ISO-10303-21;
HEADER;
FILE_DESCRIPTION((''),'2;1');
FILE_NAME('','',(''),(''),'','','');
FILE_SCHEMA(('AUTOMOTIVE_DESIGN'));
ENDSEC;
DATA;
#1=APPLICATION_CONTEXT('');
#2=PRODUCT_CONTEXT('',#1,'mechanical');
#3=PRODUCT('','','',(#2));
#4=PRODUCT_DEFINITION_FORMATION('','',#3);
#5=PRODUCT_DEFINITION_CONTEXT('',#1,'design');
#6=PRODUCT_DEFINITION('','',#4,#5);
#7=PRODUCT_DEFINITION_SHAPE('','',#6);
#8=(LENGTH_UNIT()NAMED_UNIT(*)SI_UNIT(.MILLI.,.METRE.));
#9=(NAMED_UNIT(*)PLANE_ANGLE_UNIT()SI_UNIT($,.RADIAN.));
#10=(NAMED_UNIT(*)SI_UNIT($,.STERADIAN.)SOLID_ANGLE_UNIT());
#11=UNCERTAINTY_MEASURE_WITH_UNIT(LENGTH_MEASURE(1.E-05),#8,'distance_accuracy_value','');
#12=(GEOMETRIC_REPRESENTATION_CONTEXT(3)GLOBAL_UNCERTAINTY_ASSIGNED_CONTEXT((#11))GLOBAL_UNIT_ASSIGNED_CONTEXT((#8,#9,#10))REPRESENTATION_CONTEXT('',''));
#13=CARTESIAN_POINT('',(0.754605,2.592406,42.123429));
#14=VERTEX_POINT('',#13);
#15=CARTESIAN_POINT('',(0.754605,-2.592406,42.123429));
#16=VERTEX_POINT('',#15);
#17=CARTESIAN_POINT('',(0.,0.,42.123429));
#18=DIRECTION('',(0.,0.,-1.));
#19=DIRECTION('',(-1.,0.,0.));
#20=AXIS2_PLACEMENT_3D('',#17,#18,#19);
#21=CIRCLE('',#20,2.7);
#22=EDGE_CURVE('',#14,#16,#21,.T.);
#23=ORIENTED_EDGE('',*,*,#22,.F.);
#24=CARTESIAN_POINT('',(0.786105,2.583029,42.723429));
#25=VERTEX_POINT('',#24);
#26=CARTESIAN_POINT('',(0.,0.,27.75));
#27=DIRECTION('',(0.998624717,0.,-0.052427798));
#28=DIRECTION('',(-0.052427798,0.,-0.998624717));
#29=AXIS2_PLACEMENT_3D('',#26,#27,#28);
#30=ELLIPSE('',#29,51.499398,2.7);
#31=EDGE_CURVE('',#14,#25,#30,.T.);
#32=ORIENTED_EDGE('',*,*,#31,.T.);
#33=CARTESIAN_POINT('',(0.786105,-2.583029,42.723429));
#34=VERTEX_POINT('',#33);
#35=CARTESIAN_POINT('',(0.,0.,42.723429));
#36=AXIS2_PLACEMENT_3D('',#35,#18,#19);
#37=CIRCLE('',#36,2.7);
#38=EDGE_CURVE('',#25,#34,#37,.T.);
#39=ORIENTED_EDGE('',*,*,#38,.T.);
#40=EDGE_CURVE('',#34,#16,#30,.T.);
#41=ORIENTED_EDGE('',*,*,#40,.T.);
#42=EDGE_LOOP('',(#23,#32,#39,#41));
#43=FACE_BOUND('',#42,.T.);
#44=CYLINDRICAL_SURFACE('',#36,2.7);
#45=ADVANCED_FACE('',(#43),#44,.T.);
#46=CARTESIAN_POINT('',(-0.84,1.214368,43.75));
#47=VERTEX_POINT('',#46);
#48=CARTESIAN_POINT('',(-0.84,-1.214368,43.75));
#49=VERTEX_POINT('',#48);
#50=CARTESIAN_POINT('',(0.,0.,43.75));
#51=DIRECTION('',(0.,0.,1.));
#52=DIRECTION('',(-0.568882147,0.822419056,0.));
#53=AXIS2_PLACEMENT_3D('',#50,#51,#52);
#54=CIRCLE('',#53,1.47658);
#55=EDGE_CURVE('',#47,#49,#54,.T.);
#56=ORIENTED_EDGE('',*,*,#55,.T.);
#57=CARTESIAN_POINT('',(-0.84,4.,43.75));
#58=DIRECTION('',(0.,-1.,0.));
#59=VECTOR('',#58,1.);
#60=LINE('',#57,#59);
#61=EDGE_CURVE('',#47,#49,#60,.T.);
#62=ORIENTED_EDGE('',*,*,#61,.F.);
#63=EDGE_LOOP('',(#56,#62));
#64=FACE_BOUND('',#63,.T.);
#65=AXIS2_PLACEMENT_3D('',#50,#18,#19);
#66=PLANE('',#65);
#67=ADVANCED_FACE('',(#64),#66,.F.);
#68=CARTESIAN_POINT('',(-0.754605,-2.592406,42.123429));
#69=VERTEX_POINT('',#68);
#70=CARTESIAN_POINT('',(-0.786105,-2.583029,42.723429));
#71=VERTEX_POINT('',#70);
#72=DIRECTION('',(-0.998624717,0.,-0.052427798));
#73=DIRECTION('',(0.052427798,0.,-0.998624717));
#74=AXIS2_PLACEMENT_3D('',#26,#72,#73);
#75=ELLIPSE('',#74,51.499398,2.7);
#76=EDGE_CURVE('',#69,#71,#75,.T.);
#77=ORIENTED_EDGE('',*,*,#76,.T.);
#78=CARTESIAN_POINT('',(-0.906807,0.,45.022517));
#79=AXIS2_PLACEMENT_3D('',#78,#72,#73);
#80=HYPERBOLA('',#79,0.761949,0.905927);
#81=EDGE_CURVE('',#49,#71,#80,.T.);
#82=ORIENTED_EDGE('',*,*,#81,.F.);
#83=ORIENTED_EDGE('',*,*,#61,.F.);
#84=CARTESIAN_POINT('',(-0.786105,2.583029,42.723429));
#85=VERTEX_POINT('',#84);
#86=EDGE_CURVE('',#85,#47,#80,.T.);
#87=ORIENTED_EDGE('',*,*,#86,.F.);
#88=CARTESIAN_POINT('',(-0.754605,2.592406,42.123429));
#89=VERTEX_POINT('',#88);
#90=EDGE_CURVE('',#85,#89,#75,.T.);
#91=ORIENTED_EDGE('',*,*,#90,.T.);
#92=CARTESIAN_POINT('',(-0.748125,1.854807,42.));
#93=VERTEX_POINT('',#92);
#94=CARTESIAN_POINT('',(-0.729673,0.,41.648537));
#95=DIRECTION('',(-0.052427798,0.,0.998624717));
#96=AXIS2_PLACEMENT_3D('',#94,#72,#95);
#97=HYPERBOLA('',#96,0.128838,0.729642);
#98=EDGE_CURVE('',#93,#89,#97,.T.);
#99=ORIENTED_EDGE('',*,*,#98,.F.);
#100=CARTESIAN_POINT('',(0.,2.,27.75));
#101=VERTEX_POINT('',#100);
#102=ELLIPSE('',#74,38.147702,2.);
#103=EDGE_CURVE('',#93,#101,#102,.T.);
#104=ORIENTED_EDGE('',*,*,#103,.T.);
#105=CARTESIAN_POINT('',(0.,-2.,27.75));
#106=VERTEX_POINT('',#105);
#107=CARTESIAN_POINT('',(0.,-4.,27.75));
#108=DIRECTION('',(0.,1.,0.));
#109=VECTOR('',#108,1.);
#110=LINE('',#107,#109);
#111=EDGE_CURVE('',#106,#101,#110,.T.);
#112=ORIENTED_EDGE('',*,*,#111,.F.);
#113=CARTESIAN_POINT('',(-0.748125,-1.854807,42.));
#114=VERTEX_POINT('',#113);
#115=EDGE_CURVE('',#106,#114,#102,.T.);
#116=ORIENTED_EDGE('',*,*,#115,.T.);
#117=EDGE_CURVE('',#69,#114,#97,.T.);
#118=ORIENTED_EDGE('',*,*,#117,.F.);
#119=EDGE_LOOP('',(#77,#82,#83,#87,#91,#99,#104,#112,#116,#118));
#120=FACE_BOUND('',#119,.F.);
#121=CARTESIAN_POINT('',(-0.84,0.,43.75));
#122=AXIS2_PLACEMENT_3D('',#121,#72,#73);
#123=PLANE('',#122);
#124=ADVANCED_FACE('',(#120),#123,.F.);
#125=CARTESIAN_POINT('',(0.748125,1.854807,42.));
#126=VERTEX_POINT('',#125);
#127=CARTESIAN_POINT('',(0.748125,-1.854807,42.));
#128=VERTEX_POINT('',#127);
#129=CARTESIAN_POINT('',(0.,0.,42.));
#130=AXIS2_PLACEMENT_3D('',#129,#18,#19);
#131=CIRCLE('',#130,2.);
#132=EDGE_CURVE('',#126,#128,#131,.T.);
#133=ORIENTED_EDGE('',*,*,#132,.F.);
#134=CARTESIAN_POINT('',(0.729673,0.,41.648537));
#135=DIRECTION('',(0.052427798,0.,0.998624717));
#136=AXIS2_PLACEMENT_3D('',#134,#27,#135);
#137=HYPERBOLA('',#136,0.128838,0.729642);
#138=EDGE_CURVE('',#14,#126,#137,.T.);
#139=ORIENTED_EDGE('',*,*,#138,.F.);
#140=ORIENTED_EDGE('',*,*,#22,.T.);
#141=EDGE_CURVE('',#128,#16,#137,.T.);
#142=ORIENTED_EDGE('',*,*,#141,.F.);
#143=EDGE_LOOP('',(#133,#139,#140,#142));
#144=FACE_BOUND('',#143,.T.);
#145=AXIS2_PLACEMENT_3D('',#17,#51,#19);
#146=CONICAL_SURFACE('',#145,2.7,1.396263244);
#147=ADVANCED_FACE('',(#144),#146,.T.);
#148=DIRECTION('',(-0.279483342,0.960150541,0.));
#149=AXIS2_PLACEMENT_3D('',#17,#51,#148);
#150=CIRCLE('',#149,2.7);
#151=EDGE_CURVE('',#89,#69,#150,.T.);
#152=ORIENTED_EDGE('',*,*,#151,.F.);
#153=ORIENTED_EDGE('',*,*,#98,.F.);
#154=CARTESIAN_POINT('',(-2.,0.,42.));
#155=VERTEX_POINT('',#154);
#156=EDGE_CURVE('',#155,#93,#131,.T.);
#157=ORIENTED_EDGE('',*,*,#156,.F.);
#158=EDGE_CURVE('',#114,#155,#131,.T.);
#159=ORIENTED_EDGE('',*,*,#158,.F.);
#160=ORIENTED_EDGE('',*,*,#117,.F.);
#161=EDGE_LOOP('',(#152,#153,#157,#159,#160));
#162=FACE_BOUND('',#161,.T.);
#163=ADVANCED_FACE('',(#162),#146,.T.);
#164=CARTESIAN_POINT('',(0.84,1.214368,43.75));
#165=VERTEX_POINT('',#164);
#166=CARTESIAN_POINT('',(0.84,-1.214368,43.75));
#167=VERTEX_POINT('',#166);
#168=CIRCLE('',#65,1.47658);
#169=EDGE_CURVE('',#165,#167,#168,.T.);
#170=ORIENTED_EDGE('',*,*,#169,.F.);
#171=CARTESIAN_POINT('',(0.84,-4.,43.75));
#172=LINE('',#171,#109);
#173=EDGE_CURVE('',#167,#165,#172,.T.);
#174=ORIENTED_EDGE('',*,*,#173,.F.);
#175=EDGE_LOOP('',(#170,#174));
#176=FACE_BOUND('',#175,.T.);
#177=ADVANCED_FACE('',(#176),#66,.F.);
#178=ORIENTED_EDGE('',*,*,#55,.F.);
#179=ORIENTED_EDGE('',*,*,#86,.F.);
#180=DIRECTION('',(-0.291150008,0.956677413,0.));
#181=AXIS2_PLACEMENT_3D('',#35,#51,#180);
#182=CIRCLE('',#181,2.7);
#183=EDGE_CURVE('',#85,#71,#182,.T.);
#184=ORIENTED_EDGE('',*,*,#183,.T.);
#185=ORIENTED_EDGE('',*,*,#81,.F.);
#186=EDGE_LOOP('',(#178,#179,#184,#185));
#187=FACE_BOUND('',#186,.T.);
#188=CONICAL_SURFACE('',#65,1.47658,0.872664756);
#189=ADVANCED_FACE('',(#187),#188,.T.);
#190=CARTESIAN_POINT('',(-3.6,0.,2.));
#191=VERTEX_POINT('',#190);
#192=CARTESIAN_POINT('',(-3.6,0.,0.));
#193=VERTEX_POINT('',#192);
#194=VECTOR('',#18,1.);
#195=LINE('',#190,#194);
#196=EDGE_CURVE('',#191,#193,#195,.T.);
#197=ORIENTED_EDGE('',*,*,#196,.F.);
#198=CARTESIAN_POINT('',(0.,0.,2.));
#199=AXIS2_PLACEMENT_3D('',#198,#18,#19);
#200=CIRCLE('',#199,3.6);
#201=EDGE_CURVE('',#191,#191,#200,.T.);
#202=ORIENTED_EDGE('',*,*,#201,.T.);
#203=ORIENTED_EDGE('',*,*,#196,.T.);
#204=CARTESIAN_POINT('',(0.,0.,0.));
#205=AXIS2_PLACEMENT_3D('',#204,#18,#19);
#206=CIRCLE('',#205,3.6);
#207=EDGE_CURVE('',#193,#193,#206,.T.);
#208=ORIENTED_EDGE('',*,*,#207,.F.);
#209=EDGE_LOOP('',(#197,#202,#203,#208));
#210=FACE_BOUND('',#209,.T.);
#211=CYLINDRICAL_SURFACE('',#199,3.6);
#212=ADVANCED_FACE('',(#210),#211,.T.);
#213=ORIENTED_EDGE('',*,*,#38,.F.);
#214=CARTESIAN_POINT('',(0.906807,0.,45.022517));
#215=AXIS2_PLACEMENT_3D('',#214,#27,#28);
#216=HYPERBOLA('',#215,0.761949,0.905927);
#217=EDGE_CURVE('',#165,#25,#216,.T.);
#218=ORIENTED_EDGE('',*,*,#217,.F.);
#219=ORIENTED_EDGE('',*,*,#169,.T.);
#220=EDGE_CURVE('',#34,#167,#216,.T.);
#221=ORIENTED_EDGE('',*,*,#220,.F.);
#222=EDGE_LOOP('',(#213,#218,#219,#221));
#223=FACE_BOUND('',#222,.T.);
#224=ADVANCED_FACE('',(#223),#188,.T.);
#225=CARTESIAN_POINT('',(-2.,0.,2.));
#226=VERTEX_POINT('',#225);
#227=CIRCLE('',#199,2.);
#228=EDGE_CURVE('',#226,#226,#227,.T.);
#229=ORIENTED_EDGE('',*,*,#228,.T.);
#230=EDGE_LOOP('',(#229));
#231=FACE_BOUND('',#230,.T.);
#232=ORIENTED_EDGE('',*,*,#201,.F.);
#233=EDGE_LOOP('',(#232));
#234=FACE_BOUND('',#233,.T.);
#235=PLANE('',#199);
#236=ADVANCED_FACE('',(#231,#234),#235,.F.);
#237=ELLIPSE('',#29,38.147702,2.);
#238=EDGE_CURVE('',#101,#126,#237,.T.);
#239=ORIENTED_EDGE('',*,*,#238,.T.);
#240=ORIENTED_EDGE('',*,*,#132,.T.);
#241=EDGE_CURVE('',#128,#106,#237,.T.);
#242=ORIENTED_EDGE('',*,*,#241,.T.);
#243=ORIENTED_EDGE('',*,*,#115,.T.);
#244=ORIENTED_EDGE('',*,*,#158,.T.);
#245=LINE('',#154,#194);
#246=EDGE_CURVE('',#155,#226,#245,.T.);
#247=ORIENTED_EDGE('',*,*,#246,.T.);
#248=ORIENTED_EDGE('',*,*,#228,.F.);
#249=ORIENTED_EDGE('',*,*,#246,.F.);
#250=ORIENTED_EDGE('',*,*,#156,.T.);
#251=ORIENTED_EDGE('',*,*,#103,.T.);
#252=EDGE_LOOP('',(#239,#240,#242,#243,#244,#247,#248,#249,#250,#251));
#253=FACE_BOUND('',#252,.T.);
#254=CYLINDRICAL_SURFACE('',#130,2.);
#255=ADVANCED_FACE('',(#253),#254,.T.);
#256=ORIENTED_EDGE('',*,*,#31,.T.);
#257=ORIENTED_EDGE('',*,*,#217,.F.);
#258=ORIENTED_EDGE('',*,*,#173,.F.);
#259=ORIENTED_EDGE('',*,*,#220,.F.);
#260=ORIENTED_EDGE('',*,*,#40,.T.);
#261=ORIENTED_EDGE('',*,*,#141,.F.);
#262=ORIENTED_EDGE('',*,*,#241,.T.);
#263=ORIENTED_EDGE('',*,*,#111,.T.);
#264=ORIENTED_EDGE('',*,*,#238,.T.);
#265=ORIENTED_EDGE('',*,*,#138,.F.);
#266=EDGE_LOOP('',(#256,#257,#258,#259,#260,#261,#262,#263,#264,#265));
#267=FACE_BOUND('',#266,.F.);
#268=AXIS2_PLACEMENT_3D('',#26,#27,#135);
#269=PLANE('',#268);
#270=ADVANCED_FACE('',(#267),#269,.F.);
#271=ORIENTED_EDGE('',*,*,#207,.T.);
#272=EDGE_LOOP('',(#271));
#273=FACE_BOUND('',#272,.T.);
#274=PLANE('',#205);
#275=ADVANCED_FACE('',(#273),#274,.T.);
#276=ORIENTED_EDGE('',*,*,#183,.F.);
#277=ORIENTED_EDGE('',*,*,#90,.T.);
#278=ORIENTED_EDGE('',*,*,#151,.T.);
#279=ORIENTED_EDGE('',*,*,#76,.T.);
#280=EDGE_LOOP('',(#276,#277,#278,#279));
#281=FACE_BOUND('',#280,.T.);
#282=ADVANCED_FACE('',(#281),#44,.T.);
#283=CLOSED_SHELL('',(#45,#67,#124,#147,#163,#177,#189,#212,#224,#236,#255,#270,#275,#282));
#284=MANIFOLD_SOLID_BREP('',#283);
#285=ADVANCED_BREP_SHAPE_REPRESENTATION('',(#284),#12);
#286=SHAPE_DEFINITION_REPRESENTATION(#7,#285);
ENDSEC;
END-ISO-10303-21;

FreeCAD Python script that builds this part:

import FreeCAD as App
import Part
import Sketcher
from FreeCAD import Vector
Q = App.Units.Quantity


def add_polygon(sketch, points):
    """Adds a closed chain of lines whose ends are joined by coincident constraints."""
    first, n = sketch.GeometryCount, len(points)
    for a, b in zip(points, points[1:] + points[:1]):
        sketch.addGeometry(Part.LineSegment(App.Vector(*a, 0), App.Vector(*b, 0)), False)
    for i in range(n):
        sketch.addConstraint(Sketcher.Constraint("Coincident", first + i, 2, first + (i + 1) % n, 1))

doc = App.newDocument("Part")
params = doc.addObject("Spreadsheet::Sheet", "Params")
for row, (alias, value) in enumerate([
    ("sketch1_height", "40 mm"),
    ("sketch1_height2", "2 mm"),
    ("sketch1_width", "1.6 mm"),
    ("sketch1_width2", "3.6 mm"),
    ("sketch1_height3", "0.6 mm"),
    ("revolution_angle", "360 deg"),
    ("sketch2_width", "1.68 mm"),
    ("pad1_length", "4 mm"),
    ("pad1_length2", "4 mm"),
], start=1):
    params.set(f"A{row}", alias)
    params.set(f"B{row}", "=" + value)
    params.setAlias(f"B{row}", alias)

body = doc.addObject("PartDesign::Body", "Body")

sketch1 = body.newObject("Sketcher::SketchObject", "Sketch")
sketch1.AttachmentSupport = (doc.getObject("XZ_Plane"), [""])
sketch1.MapMode = "FlatFace"
add_polygon(sketch1, [(0, 43.8), (-1.5, 43.8), (-2.7, 42.7), (-2.7, 42.1), (-2, 42), (-2, 2), (-3.6, 2), (-3.6, 0), (0, 0)])
sketch1.addConstraint(Sketcher.Constraint("Horizontal", 0))
sketch1.addConstraint(Sketcher.Constraint("Vertical", 2))
sketch1.addConstraint(Sketcher.Constraint("Vertical", 4))
sketch1.addConstraint(Sketcher.Constraint("Horizontal", 5))
sketch1.addConstraint(Sketcher.Constraint("Vertical", 6))
sketch1.addConstraint(Sketcher.Constraint("Horizontal", 7))
sketch1.addConstraint(Sketcher.Constraint("Vertical", 8))
sketch1.addConstraint(Sketcher.Constraint("Coincident", 7, 2, -1, 1))
sketch1.addConstraint(Sketcher.Constraint("DistanceY", 4, 2, 4, 1, 40.0))
sketch1.addConstraint(Sketcher.Constraint("DistanceY", 6, 2, 6, 1, 2.0))
sketch1.addConstraint(Sketcher.Constraint("Angle", 1, Q("-140.000007 deg")))
sketch1.addConstraint(Sketcher.Constraint("Angle", 3, Q("-10.000009 deg")))
sketch1.addConstraint(Sketcher.Constraint("DistanceX", 5, 2, 5, 1, 1.6))
sketch1.addConstraint(Sketcher.Constraint("DistanceX", 7, 1, 7, 2, 3.6))
sketch1.addConstraint(Sketcher.Constraint("DistanceY", 2, 2, 2, 1, 0.6))
sketch1.addConstraint(Sketcher.Constraint("DistanceY", 8, 1, 8, 2, 43.75))
sketch1.addConstraint(Sketcher.Constraint("DistanceX", 1, 2, -1, 1, 2.7))
sketch1.setExpression("Constraints[17]", "Params.sketch1_height")
sketch1.setExpression("Constraints[18]", "Params.sketch1_height2")
sketch1.setExpression("Constraints[21]", "Params.sketch1_width")
sketch1.setExpression("Constraints[22]", "Params.sketch1_width2")
sketch1.setExpression("Constraints[23]", "Params.sketch1_height3")
revolution = body.newObject("PartDesign::Revolution", "Revolution")
revolution.Profile = sketch1
revolution.ReferenceAxis = (sketch1, ["V_Axis"])
revolution.setExpression("Angle", "Params.revolution_angle")
body2 = doc.addObject("PartDesign::Body", "Body001")

sketch2 = body2.newObject("Sketcher::SketchObject", "Sketch001")
sketch2.AttachmentSupport = (doc.getObject("XZ_Plane001"), [""])
sketch2.MapMode = "FlatFace"
add_polygon(sketch2, [(0.8, 43.8), (-0.8, 43.8), (0, 27.8)])
sketch2.addConstraint(Sketcher.Constraint("Horizontal", 0))
sketch2.addConstraint(Sketcher.Constraint("PointOnObject", 1, 2, -2))
sketch2.addConstraint(Sketcher.Constraint("Equal", 1, 2))
sketch2.addConstraint(Sketcher.Constraint("DistanceY", 1, 2, 0, 2, 16.0))
sketch2.addConstraint(Sketcher.Constraint("DistanceX", 0, 2, 0, 1, 1.68))
sketch2.addConstraint(Sketcher.Constraint("DistanceY", -1, 1, 0, 2, 43.75))
sketch2.setExpression("Constraints[7]", "Params.sketch2_width")
pad1 = body2.newObject("PartDesign::Pad", "Pad")
pad1.Profile = sketch2
pad1.Type = "TwoLengths"
pad1.setExpression("Length", "Params.pad1_length")
pad1.setExpression("Length2", "Params.pad1_length2")
doc.recompute()

boolean = body.newObject("PartDesign::Boolean", "Boolean")
boolean.Type = "Cut"
boolean.addObjects([body2])

doc.recompute()
